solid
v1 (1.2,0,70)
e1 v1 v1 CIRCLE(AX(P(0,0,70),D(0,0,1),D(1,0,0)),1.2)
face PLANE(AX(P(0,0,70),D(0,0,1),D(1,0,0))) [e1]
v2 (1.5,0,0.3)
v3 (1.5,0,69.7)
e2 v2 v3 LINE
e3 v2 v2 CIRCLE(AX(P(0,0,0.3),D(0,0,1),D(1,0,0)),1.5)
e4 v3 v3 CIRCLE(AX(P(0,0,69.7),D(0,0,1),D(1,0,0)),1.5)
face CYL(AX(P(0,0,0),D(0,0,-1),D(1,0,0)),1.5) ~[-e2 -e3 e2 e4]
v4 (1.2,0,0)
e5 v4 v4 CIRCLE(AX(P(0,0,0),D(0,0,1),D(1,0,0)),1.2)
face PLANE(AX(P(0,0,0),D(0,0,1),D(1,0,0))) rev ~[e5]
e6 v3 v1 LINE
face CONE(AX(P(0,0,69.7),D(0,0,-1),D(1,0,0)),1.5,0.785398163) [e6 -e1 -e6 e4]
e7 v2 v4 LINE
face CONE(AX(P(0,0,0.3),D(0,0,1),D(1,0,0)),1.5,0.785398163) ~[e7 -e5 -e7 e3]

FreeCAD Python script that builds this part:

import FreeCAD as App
import Part
import Sketcher
from FreeCAD import Vector
Q = App.Units.Quantity


def edges_at(feature, points):
    """Names of the edges that pass closest to the given points."""
    edges = feature.Shape.Edges
    near = lambda p: min(range(len(edges)), key=lambda i: edges[i].distToShape(Part.Vertex(*p))[0])
    return sorted({f"Edge{near(p) + 1}" for p in points})

doc = App.newDocument("Part")
body = doc.addObject("PartDesign::Body", "Body")

# Sketch on XY plane
sketch1 = body.newObject("Sketcher::SketchObject", "Sketch")
sketch1.AttachmentSupport = (doc.getObject("XY_Plane"), [""])
sketch1.MapMode = "FlatFace"
sketch1.addGeometry(Part.Circle(Vector(0, 0, 0), Vector(0, 0, 1), 1.5), False)
sketch1.addConstraint([
    Sketcher.Constraint("Coincident", 0, 3, -1, 1),
    Sketcher.Constraint("Diameter", 0, Q("3 mm")),
])
pad1 = body.newObject("PartDesign::Pad", "Pad")
pad1.Profile = sketch1
pad1.Length = 70
doc.recompute()

chamfer = body.newObject("PartDesign::Chamfer", "Chamfer")
chamfer.Base = (pad1, edges_at(pad1, [(-1.5, 0, 70), (-1.5, 0, 0)]))
chamfer.Size = 0.3

doc.recompute()
